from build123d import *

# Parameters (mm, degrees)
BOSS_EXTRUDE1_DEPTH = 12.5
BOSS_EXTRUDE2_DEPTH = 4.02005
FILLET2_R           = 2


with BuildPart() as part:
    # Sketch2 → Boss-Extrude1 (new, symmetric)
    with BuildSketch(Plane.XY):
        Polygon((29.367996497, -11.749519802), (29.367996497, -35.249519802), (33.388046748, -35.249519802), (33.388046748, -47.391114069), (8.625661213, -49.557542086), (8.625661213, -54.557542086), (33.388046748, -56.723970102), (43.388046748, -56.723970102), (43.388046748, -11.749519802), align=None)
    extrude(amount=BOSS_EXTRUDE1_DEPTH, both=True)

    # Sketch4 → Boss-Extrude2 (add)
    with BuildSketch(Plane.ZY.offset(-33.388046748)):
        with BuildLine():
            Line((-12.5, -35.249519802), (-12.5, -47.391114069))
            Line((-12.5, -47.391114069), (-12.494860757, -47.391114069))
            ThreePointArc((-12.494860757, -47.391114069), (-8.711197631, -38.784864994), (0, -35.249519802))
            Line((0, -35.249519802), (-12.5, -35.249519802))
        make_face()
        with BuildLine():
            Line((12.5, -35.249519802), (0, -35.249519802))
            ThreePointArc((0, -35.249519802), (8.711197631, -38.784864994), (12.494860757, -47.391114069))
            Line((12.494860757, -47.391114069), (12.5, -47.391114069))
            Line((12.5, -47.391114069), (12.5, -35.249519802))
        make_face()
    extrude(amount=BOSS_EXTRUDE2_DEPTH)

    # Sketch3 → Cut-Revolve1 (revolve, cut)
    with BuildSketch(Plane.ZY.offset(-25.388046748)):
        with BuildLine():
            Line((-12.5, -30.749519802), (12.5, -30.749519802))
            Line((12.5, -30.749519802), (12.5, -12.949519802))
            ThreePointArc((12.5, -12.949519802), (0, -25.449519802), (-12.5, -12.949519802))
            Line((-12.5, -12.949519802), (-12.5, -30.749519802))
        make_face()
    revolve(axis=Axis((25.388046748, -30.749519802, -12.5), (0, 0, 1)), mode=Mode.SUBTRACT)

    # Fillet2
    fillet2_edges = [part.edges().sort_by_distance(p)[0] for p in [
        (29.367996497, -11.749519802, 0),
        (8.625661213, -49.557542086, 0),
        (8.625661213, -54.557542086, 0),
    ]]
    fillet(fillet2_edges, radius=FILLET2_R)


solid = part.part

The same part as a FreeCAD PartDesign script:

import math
import FreeCAD as App
import Part
import Sketcher
from FreeCAD import Vector
Q = App.Units.Quantity


def edges_at(feature, points):
    """Names of the edges that pass closest to the given points."""
    edges = feature.Shape.Edges
    near = lambda p: min(range(len(edges)), key=lambda i: edges[i].distToShape(Part.Vertex(*p))[0])
    return sorted({f"Edge{near(p) + 1}" for p in points})

doc = App.newDocument("Part")
body = doc.addObject("PartDesign::Body", "Body")

# Sketch on XY plane
sketch1 = doc.addObject("Sketcher::SketchObject", "Sketch")
body.addObject(sketch1)
sketch1.AttachmentSupport = (doc.XY_Plane, [""])
sketch1.MapMode = "FlatFace"
sketch1.addGeometry([
    Part.LineSegment(Vector(29.4, -11.7, 0), Vector(29.4, -35.2, 0)),  # 0
    Part.LineSegment(Vector(29.4, -35.2, 0), Vector(33.4, -35.2, 0)),  # 1
    Part.LineSegment(Vector(33.4, -35.2, 0), Vector(33.4, -47.4, 0)),  # 2
    Part.LineSegment(Vector(33.4, -47.4, 0), Vector(8.6, -49.6, 0)),  # 3
    Part.LineSegment(Vector(8.6, -49.6, 0), Vector(8.6, -54.6, 0)),  # 4
    Part.LineSegment(Vector(8.6, -54.6, 0), Vector(33.4, -56.7, 0)),  # 5
    Part.LineSegment(Vector(33.4, -56.7, 0), Vector(43.4, -56.7, 0)),  # 6
    Part.LineSegment(Vector(43.4, -56.7, 0), Vector(43.4, -11.7, 0)),  # 7
    Part.LineSegment(Vector(43.4, -11.7, 0), Vector(29.4, -11.7, 0)),  # 8
], False)
sketch1.addConstraint([
    Sketcher.Constraint("Coincident", 0, 2, 1, 1),
    Sketcher.Constraint("Coincident", 1, 2, 2, 1),
    Sketcher.Constraint("Coincident", 2, 2, 3, 1),
    Sketcher.Constraint("Coincident", 3, 2, 4, 1),
    Sketcher.Constraint("Coincident", 4, 2, 5, 1),
    Sketcher.Constraint("Coincident", 5, 2, 6, 1),
    Sketcher.Constraint("Coincident", 6, 2, 7, 1),
    Sketcher.Constraint("Coincident", 7, 2, 8, 1),
    Sketcher.Constraint("Coincident", 8, 2, 0, 1),
    Sketcher.Constraint("Vertical", 0),
    Sketcher.Constraint("Horizontal", 1),
    Sketcher.Constraint("Vertical", 2),
    Sketcher.Constraint("Vertical", 4),
    Sketcher.Constraint("Horizontal", 6),
    Sketcher.Constraint("Vertical", 7),
    Sketcher.Constraint("Horizontal", 8),
    Sketcher.Constraint("Vertical", 2, 2, 5, 2),
    Sketcher.Constraint("Equal", 3, 5),
    Sketcher.Constraint("DistanceX", 6, 1, 6, 2, Q("10 mm")),
    Sketcher.Constraint("DistanceY", 4, 2, 4, 1, Q("5 mm")),
    Sketcher.Constraint("Angle", 3, Q("-175 deg")),
    Sketcher.Constraint("DistanceY", 0, 2, 0, 1, Q("23.5 mm")),
    Sketcher.Constraint("DistanceX", 1, 1, 1, 2, Q("4.02005 mm")),
    Sketcher.Constraint("DistanceY", 7, 1, 7, 2, Q("44.97445 mm")),
    Sketcher.Constraint("DistanceY", 2, 2, 2, 1, Q("12.141594 mm")),
    Sketcher.Constraint("DistanceY", 0, 2, -1, 1, Q("35.24952 mm")),
    Sketcher.Constraint("DistanceX", -1, 1, 3, 2, Q("8.625661 mm")),
])
pad1 = doc.addObject("PartDesign::Pad", "Pad")
body.addObject(pad1)
pad1.Profile = sketch1
pad1.Length = 25
pad1.Midplane = True

# Sketch on YZ plane
sketch2 = doc.addObject("Sketcher::SketchObject", "Sketch001")
body.addObject(sketch2)
sketch2.AttachmentSupport = (doc.YZ_Plane, [""])
sketch2.MapMode = "FlatFace"
sketch2.AttachmentOffset = App.Placement(Vector(0, 0, 33.388047), App.Rotation())
sketch2.addGeometry([
    Part.LineSegment(Vector(-35.25, -12.5, 0), Vector(-47.391, -12.5, 0)),  # 0
    Part.LineSegment(Vector(-47.391, -12.5, 0), Vector(-47.391, -12.495, 0)),  # 1
    Part.ArcOfCircle(Part.Circle(Vector(-47.75, 0, 0), Vector(0, 0, 1), 12.5), math.radians(-88), math.radians(0)),  # 2
    Part.LineSegment(Vector(-35.25, 0, 0), Vector(-35.25, -12.5, 0)),  # 3
    Part.LineSegment(Vector(-35.25, 12.5, 0), Vector(-35.25, 0, 0)),  # 4
    Part.ArcOfCircle(Part.Circle(Vector(-47.75, 0, 0), Vector(0, 0, 1), 12.5), math.radians(0), math.radians(88)),  # 5
    Part.LineSegment(Vector(-47.391, 12.495, 0), Vector(-47.391, 12.5, 0)),  # 6
    Part.LineSegment(Vector(-47.391, 12.5, 0), Vector(-35.25, 12.5, 0)),  # 7
], False)
sketch2.addConstraint([
    Sketcher.Constraint("Coincident", 0, 2, 1, 1),
    Sketcher.Constraint("Coincident", 1, 2, 2, 1),
    Sketcher.Constraint("Tangent", 2, 2, 3, 1),
    Sketcher.Constraint("Coincident", 3, 2, 0, 1),
    Sketcher.Constraint("Tangent", 4, 2, 5, 1),
    Sketcher.Constraint("Coincident", 5, 2, 6, 1),
    Sketcher.Constraint("Coincident", 6, 2, 7, 1),
    Sketcher.Constraint("Coincident", 7, 2, 4, 1),
    Sketcher.Constraint("Horizontal", 0),
    Sketcher.Constraint("Vertical", 1),
    Sketcher.Constraint("Vertical", 3),
    Sketcher.Constraint("Vertical", 4),
    Sketcher.Constraint("Vertical", 6),
    Sketcher.Constraint("Horizontal", 7),
    Sketcher.Constraint("Coincident", 5, 3, 2, 3),
    Sketcher.Constraint("Equal", 2, 5),
    Sketcher.Constraint("Symmetric", 1, 2, 5, 2, -1),
    Sketcher.Constraint("Equal", 3, 4),
    Sketcher.Constraint("Radius", 2, Q("12.5 mm")),
    Sketcher.Constraint("DistanceY", 3, 2, 3, 1, Q("12.5 mm")),
    Sketcher.Constraint("DistanceY", 1, 1, 1, 2, Q("0.005139 mm")),
    Sketcher.Constraint("DistanceX", 2, 3, -1, 1, Q("47.74952 mm")),
])
pad2 = doc.addObject("PartDesign::Pad", "Pad001")
body.addObject(pad2)
pad2.Profile = sketch2
pad2.Length = 4.02005
pad2.Reversed = True

# Sketch on YZ plane
sketch3 = doc.addObject("Sketcher::SketchObject", "Sketch002")
body.addObject(sketch3)
sketch3.AttachmentSupport = (doc.YZ_Plane, [""])
sketch3.MapMode = "FlatFace"
sketch3.AttachmentOffset = App.Placement(Vector(0, 0, 25.388047), App.Rotation())
sketch3.addGeometry([
    Part.LineSegment(Vector(-31, -12, 0), Vector(-31, 12, 0)),
    Part.LineSegment(Vector(-31, 12, 0), Vector(-13, 12, 0)),
    Part.ArcOfCircle(Part.Circle(Vector(-13, 0, 0), Vector(0, 0, 1), 12), math.radians(90), math.radians(270)),
    Part.LineSegment(Vector(-13, -12, 0), Vector(-31, -12, 0)),
], False)
sketch3.addGeometry(Part.LineSegment(Vector(-31, -12, 0), Vector(-31, 12, 0)), True)  # axis
sketch3.addConstraint([
    Sketcher.Constraint("Coincident", 0, 2, 1, 1),
    Sketcher.Constraint("Tangent", 1, 2, 2, 1),
    Sketcher.Constraint("Tangent", 2, 2, 3, 1),
    Sketcher.Constraint("Coincident", 3, 2, 0, 1),
    Sketcher.Constraint("Vertical", 0),
    Sketcher.Constraint("Horizontal", 1),
    Sketcher.Constraint("Horizontal", 3),
    Sketcher.Constraint("Vertical", 4),
    Sketcher.Constraint("Coincident", 4, 1, 3, 2),
    Sketcher.Constraint("PointOnObject", 2, 3, -1),
    Sketcher.Constraint("Horizontal", 1, 2, 4, 2),
    Sketcher.Constraint("Radius", 2, Q("12.5 mm")),
    Sketcher.Constraint("DistanceX", 1, 1, 1, 2, Q("17.8 mm")),
    Sketcher.Constraint("DistanceX", 2, 3, -1, 1, Q("12.94952 mm")),
])
groove = doc.addObject("PartDesign::Groove", "Groove")
body.addObject(groove)
groove.Profile = sketch3
groove.ReferenceAxis = (sketch3, ["Axis0"])
groove.Angle = 360
doc.recompute()

fillet = doc.addObject("PartDesign::Fillet", "Fillet")
body.addObject(fillet)
fillet.Base = (groove, edges_at(groove, [(29.368, -11.75, 0), (8.626, -49.558, 0), (8.626, -54.558, 0)]))
fillet.Radius = 2

doc.recompute()
